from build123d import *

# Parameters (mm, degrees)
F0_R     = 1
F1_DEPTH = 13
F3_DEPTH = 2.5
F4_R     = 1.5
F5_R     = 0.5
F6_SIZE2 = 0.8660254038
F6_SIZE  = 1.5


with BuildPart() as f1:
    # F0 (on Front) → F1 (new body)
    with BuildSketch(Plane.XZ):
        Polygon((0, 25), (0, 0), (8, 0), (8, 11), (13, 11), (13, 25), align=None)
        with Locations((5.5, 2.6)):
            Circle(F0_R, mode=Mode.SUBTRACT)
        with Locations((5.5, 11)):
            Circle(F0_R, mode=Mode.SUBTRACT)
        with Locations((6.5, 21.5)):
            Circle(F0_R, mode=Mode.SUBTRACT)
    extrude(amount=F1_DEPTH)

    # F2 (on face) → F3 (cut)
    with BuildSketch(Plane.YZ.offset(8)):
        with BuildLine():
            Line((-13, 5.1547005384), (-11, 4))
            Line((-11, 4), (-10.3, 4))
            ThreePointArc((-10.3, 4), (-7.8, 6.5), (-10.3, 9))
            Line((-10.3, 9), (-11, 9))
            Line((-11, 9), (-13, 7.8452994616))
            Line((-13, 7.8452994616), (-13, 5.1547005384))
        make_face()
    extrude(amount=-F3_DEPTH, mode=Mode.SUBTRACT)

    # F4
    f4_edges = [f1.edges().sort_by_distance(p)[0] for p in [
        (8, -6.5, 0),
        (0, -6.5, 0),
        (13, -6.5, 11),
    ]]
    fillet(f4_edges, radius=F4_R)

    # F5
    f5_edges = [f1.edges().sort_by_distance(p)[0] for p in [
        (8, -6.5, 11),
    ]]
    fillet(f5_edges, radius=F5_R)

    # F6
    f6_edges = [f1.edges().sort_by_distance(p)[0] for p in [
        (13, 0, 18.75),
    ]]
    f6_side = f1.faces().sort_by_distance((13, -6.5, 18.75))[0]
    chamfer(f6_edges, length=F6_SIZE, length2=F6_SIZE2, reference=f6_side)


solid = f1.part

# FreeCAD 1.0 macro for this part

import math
import FreeCAD as App
import Part
import Sketcher

V = App.Vector
Q = App.Units.Quantity


def edges_at(feature, points):
    """Names of the edges that pass closest to the given points."""
    edges = feature.Shape.Edges
    near = lambda p: min(range(len(edges)), key=lambda i: edges[i].distToShape(Part.Vertex(*p))[0])
    return sorted({f"Edge{near(p) + 1}" for p in points})


def add_polygon(sketch, points):
    """Adds a closed chain of lines whose ends are joined by coincident constraints."""
    first, n = sketch.GeometryCount, len(points)
    for a, b in zip(points, points[1:] + points[:1]):
        sketch.addGeometry(Part.LineSegment(App.Vector(*a, 0), App.Vector(*b, 0)), False)
    for i in range(n):
        sketch.addConstraint(Sketcher.Constraint("Coincident", first + i, 2, first + (i + 1) % n, 1))

doc = App.newDocument("Part")
body = doc.addObject("PartDesign::Body", "Body")

# Sketch on XZ plane
sketch1 = body.newObject("Sketcher::SketchObject", "Sketch")
sketch1.AttachmentSupport = (doc.getObject("XZ_Plane"), [""])
sketch1.MapMode = "FlatFace"
add_polygon(sketch1, [(0, 25), (0, 0), (8, 0), (8, 11), (13, 11), (13, 25)])  # lines 0-5
sketch1.addGeometry(Part.Circle(V(5.5, 2.6, 0), V(0, 0, 1), 1), False)  # 6
sketch1.addGeometry(Part.Circle(V(5.5, 11, 0), V(0, 0, 1), 1), False)  # 7
sketch1.addGeometry(Part.Circle(V(6.5, 21.5, 0), V(0, 0, 1), 1), False)  # 8
sketch1.addConstraint([
    Sketcher.Constraint("Vertical", 0),
    Sketcher.Constraint("Horizontal", 1),
    Sketcher.Constraint("Vertical", 2),
    Sketcher.Constraint("Horizontal", 3),
    Sketcher.Constraint("Vertical", 4),
    Sketcher.Constraint("Horizontal", 5),
    Sketcher.Constraint("Coincident", 0, 2, -1, 1),
    Sketcher.Constraint("Equal", 6, 7),
    Sketcher.Constraint("Equal", 7, 8),
    Sketcher.Constraint("Horizontal", 7, 3, 2, 2),
    Sketcher.Constraint("Vertical", 6, 3, 7, 3),
    Sketcher.Constraint("Diameter", 6, 2.0),
    Sketcher.Constraint("DistanceX", 1, 1, 1, 2, 8.0),
    Sketcher.Constraint("DistanceX", 3, 1, 3, 2, 5.0),
    Sketcher.Constraint("DistanceY", 0, 2, 0, 1, 25.0),
    Sketcher.Constraint("DistanceY", 2, 1, 2, 2, 11.0),
    Sketcher.Constraint("DistanceX", 7, 3, 8, 3, 1.0),
    Sketcher.Constraint("DistanceX", -1, 1, 6, 3, 5.5),
    Sketcher.Constraint("DistanceY", -1, 1, 6, 3, 2.6),
    Sketcher.Constraint("DistanceY", -1, 1, 8, 3, 21.5),
])
pad1 = body.newObject("PartDesign::Pad", "Pad")
pad1.Profile = sketch1
pad1.Length = 13

# Sketch on YZ plane
sketch2 = body.newObject("Sketcher::SketchObject", "Sketch001")
sketch2.AttachmentSupport = (doc.getObject("YZ_Plane"), [""])
sketch2.MapMode = "FlatFace"
sketch2.AttachmentOffset = App.Placement(V(0, 0, 8), App.Rotation())
sketch2.addGeometry([
    Part.LineSegment(V(-13, 5.2, 0), V(-11, 4, 0)),  # 0
    Part.LineSegment(V(-11, 4, 0), V(-10.3, 4, 0)),  # 1
    Part.ArcOfCircle(Part.Circle(V(-10.3, 6.5, 0), V(0, 0, 1), 2.5), math.radians(-90), math.radians(90)),  # 2
    Part.LineSegment(V(-10.3, 9, 0), V(-11, 9, 0)),  # 3
    Part.LineSegment(V(-11, 9, 0), V(-13, 7.8, 0)),  # 4
    Part.LineSegment(V(-13, 7.8, 0), V(-13, 5.2, 0)),  # 5
], False)
sketch2.addConstraint([
    Sketcher.Constraint("Coincident", 0, 2, 1, 1),
    Sketcher.Constraint("Tangent", 1, 2, 2, 1),
    Sketcher.Constraint("Tangent", 2, 2, 3, 1),
    Sketcher.Constraint("Coincident", 3, 2, 4, 1),
    Sketcher.Constraint("Coincident", 4, 2, 5, 1),
    Sketcher.Constraint("Coincident", 5, 2, 0, 1),
    Sketcher.Constraint("Horizontal", 1),
    Sketcher.Constraint("Horizontal", 3),
    Sketcher.Constraint("Vertical", 5),
    Sketcher.Constraint("Vertical", 0, 2, 3, 2),
    Sketcher.Constraint("Equal", 0, 4),
    Sketcher.Constraint("Radius", 2, 2.5),
    Sketcher.Constraint("Angle", 0, Q("-30 deg")),
    Sketcher.Constraint("DistanceX", 1, 1, 1, 2, 0.7),
    Sketcher.Constraint("DistanceX", 0, 2, -1, 1, 11.0),
    Sketcher.Constraint("DistanceY", -1, 1, 0, 2, 4.0),
    Sketcher.Constraint("DistanceX", 4, 2, -1, 1, 13.0),
])
pocket1 = body.newObject("PartDesign::Pocket", "Pocket")
pocket1.Profile = sketch2
pocket1.Length = 2.5
doc.recompute()

fillet = body.newObject("PartDesign::Fillet", "Fillet")
fillet.Base = (pocket1, edges_at(pocket1, [(8, -6.5, 0), (0, -6.5, 0), (13, -6.5, 11)]))
fillet.Radius = 1.5
doc.recompute()

fillet2 = body.newObject("PartDesign::Fillet", "Fillet001")
fillet2.Base = (fillet, edges_at(fillet, [(8, -6.5, 11)]))
fillet2.Radius = 0.5
doc.recompute()

chamfer = body.newObject("PartDesign::Chamfer", "Chamfer")
chamfer.Base = (fillet2, edges_at(fillet2, [(13, 0, 18.75)]))
chamfer.ChamferType = "Two distances"
chamfer.Size = 1.5
chamfer.Size2 = 0.866025
chamfer.FlipDirection = True

doc.recompute()
